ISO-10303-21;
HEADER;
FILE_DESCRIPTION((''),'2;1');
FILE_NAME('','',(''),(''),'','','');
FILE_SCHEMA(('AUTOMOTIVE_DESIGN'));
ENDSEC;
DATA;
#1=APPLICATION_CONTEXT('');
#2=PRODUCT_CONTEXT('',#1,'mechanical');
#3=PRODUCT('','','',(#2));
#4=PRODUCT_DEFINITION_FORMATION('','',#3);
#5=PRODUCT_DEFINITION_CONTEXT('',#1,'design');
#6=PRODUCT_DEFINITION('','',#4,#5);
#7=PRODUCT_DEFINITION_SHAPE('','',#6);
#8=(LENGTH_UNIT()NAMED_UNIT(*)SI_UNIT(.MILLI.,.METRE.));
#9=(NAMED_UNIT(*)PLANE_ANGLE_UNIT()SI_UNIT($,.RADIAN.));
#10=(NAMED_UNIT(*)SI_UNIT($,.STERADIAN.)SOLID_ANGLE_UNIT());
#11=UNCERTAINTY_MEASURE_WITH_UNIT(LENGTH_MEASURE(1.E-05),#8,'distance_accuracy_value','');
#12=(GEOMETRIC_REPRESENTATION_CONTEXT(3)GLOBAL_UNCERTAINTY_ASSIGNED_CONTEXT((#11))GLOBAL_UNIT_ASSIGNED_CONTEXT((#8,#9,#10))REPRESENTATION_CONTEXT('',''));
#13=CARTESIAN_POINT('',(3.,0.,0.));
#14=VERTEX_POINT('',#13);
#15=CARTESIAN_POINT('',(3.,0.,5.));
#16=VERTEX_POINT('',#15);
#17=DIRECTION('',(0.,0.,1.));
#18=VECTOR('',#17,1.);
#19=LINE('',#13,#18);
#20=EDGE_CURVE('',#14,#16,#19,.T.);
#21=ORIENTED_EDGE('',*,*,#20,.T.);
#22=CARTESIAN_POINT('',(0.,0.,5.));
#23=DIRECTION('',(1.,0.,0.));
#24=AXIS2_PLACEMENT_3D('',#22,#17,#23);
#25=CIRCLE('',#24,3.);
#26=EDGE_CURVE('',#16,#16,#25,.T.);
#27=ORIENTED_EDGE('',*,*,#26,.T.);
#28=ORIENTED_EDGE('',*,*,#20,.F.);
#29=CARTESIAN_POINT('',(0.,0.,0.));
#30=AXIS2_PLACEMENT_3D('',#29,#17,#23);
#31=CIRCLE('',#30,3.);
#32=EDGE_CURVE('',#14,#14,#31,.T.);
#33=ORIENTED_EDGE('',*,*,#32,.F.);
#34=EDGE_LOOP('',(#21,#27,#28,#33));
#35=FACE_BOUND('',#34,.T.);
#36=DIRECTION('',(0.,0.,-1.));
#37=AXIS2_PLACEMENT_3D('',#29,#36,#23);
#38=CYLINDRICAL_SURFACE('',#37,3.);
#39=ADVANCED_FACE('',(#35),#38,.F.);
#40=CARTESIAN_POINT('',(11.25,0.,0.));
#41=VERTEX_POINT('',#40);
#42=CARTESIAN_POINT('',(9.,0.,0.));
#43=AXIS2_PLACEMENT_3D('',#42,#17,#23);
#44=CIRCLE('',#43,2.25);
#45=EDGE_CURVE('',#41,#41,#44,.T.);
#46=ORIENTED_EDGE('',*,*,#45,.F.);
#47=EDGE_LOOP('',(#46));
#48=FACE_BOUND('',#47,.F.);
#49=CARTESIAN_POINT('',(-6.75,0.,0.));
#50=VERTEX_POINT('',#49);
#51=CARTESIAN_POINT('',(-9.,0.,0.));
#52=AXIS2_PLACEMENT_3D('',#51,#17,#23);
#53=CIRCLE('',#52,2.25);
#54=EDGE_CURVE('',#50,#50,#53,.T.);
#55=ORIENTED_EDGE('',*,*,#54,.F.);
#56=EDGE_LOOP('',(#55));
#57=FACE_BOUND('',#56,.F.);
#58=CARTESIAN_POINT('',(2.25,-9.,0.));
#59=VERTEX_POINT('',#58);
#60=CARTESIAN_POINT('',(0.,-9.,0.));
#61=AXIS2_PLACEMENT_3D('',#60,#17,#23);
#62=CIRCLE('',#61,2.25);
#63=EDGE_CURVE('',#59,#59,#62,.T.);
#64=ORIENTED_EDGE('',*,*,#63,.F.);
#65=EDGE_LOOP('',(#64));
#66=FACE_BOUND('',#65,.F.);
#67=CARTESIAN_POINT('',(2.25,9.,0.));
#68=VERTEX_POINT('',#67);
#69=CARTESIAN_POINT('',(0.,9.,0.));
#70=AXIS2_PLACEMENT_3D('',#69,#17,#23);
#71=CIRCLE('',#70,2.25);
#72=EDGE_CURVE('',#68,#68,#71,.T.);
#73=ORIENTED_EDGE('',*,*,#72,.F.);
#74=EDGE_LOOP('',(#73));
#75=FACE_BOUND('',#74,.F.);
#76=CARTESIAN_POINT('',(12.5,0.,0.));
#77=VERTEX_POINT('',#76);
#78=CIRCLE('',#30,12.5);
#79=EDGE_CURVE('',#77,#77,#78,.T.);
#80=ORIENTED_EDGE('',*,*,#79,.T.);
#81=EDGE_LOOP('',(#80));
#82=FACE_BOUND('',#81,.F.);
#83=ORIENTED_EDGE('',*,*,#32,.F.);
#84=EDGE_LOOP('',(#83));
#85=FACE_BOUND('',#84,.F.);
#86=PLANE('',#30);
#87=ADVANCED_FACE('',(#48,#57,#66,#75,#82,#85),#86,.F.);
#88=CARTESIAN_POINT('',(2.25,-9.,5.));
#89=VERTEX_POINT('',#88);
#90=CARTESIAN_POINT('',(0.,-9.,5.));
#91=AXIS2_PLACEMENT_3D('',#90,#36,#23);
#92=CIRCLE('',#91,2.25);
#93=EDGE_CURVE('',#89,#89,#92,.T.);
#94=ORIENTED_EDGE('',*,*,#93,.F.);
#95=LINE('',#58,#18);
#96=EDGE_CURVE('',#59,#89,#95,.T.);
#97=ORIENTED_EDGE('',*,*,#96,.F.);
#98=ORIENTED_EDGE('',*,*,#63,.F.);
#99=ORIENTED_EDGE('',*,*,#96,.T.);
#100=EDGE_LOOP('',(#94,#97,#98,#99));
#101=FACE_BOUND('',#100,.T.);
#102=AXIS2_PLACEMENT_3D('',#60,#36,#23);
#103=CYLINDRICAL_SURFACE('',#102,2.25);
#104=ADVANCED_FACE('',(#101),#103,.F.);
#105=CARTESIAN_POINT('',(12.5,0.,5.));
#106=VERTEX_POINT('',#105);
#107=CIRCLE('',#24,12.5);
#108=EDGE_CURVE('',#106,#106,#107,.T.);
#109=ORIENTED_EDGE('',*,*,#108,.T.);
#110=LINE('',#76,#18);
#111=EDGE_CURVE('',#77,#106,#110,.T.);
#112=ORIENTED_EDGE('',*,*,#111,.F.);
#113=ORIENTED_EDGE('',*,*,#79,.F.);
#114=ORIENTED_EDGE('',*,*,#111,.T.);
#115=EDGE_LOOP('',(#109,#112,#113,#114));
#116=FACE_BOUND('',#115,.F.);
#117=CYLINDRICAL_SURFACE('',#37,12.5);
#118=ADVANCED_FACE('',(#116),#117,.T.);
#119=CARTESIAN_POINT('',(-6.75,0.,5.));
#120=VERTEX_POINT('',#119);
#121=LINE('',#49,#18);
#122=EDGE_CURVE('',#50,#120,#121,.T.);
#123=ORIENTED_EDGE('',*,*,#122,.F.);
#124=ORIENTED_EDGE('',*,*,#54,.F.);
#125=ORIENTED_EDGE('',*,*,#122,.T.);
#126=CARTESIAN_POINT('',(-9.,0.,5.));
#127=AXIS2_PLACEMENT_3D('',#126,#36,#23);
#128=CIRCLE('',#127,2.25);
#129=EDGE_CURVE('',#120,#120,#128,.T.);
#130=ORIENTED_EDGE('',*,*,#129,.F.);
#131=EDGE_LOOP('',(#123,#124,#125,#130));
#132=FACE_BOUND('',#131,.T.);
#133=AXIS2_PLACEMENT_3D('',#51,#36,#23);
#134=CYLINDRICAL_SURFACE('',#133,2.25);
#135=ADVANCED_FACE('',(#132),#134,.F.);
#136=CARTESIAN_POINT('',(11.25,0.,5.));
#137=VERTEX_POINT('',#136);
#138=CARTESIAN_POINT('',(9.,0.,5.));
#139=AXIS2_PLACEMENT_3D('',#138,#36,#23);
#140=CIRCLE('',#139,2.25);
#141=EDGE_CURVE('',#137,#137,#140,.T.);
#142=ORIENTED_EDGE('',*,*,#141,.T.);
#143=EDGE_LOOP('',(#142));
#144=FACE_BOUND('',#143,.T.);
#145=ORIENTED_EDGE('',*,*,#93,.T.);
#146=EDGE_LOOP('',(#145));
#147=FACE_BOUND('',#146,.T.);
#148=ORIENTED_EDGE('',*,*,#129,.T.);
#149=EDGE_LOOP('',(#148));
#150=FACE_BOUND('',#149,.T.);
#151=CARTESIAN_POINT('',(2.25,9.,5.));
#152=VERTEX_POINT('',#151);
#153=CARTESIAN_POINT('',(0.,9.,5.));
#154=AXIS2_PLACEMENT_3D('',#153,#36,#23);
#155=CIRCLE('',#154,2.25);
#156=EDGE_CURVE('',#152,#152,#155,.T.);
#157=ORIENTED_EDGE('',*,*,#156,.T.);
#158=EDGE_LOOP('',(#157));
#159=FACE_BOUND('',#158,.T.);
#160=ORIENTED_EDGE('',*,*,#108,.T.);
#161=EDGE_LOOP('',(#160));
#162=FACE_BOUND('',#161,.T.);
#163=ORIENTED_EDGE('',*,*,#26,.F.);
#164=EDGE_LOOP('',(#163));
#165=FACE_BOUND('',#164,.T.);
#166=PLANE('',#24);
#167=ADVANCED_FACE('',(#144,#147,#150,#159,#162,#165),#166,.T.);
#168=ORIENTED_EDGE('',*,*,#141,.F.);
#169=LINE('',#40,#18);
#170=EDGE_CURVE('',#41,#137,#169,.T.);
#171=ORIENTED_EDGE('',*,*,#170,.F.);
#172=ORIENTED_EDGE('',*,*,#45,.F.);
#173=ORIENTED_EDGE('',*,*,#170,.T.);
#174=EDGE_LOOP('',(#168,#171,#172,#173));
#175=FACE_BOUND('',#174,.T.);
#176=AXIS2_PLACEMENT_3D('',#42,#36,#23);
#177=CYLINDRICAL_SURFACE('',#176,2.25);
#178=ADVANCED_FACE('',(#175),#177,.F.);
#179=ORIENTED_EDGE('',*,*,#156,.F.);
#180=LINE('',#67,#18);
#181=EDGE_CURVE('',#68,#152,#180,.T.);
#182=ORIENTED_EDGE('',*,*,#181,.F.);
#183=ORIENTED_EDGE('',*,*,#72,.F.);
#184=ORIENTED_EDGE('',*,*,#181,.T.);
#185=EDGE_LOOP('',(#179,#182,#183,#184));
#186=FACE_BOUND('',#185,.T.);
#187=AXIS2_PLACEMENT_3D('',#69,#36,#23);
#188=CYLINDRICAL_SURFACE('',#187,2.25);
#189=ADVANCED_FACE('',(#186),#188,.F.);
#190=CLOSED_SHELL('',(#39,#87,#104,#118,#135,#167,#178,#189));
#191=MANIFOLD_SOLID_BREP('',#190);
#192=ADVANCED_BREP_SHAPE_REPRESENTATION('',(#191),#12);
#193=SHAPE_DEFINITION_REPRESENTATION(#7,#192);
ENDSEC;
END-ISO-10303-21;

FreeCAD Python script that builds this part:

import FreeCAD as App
import Part
import Sketcher

V = App.Vector

doc = App.newDocument("Part")
body = doc.addObject("PartDesign::Body", "Body")

sketch1 = body.newObject("Sketcher::SketchObject", "Sketch")
sketch1.AttachmentSupport = (doc.getObject("XY_Plane"), [""])
sketch1.MapMode = "FlatFace"
sketch1.addGeometry([
    Part.Circle(V(0, 0, 0), V(0, 0, 1), 12.5),
    Part.Circle(V(0, 0, 0), V(0, 0, 1), 3),
], False)
sketch1.addConstraint([
    Sketcher.Constraint("Coincident", 0, 3, -1, 1),
    Sketcher.Constraint("Coincident", 1, 3, -1, 1),
    Sketcher.Constraint("Diameter", 0, 25.0),
    Sketcher.Constraint("Diameter", 1, 6.0),
])
pad1 = body.newObject("PartDesign::Pad", "Pad")
pad1.Profile = sketch1
pad1.Length = 5

sketch2 = body.newObject("Sketcher::SketchObject", "Sketch001")
sketch2.AttachmentSupport = (doc.getObject("XY_Plane"), [""])
sketch2.MapMode = "FlatFace"
sketch2.addGeometry([
    Part.Circle(V(0, 9, 0), V(0, 0, 1), 2.2),
    Part.Circle(V(0, -9, 0), V(0, 0, 1), 2.2),
], False)
sketch2.addConstraint([
    Sketcher.Constraint("Equal", 0, 1),
    Sketcher.Constraint("Symmetric", 0, 3, 1, 3, -1, 1),
    Sketcher.Constraint("PointOnObject", 0, 3, -2),
    Sketcher.Constraint("Diameter", 0, 4.5),
    Sketcher.Constraint("DistanceY", -1, 1, 0, 3, 9.0),
])
pocket1 = body.newObject("PartDesign::Pocket", "Pocket")
pocket1.Profile = sketch2
pocket1.Length = 10
pocket1.Reversed = True

sketch3 = body.newObject("Sketcher::SketchObject", "Sketch002")
sketch3.AttachmentSupport = (doc.getObject("XY_Plane"), [""])
sketch3.MapMode = "FlatFace"
sketch3.addGeometry([
    Part.Circle(V(-9, 0, 0), V(0, 0, 1), 2.2),
    Part.Circle(V(9, 0, 0), V(0, 0, 1), 2.2),
], False)
sketch3.addConstraint([
    Sketcher.Constraint("Equal", 0, 1),
    Sketcher.Constraint("Symmetric", 0, 3, 1, 3, -1, 1),
    Sketcher.Constraint("PointOnObject", 0, 3, -1),
    Sketcher.Constraint("Diameter", 0, 4.5),
    Sketcher.Constraint("DistanceX", 0, 3, -1, 1, 9.0),
])
pocket2 = body.newObject("PartDesign::Pocket", "Pocket001")
pocket2.Profile = sketch3
pocket2.Length = 10
pocket2.Reversed = True

doc.recompute()
